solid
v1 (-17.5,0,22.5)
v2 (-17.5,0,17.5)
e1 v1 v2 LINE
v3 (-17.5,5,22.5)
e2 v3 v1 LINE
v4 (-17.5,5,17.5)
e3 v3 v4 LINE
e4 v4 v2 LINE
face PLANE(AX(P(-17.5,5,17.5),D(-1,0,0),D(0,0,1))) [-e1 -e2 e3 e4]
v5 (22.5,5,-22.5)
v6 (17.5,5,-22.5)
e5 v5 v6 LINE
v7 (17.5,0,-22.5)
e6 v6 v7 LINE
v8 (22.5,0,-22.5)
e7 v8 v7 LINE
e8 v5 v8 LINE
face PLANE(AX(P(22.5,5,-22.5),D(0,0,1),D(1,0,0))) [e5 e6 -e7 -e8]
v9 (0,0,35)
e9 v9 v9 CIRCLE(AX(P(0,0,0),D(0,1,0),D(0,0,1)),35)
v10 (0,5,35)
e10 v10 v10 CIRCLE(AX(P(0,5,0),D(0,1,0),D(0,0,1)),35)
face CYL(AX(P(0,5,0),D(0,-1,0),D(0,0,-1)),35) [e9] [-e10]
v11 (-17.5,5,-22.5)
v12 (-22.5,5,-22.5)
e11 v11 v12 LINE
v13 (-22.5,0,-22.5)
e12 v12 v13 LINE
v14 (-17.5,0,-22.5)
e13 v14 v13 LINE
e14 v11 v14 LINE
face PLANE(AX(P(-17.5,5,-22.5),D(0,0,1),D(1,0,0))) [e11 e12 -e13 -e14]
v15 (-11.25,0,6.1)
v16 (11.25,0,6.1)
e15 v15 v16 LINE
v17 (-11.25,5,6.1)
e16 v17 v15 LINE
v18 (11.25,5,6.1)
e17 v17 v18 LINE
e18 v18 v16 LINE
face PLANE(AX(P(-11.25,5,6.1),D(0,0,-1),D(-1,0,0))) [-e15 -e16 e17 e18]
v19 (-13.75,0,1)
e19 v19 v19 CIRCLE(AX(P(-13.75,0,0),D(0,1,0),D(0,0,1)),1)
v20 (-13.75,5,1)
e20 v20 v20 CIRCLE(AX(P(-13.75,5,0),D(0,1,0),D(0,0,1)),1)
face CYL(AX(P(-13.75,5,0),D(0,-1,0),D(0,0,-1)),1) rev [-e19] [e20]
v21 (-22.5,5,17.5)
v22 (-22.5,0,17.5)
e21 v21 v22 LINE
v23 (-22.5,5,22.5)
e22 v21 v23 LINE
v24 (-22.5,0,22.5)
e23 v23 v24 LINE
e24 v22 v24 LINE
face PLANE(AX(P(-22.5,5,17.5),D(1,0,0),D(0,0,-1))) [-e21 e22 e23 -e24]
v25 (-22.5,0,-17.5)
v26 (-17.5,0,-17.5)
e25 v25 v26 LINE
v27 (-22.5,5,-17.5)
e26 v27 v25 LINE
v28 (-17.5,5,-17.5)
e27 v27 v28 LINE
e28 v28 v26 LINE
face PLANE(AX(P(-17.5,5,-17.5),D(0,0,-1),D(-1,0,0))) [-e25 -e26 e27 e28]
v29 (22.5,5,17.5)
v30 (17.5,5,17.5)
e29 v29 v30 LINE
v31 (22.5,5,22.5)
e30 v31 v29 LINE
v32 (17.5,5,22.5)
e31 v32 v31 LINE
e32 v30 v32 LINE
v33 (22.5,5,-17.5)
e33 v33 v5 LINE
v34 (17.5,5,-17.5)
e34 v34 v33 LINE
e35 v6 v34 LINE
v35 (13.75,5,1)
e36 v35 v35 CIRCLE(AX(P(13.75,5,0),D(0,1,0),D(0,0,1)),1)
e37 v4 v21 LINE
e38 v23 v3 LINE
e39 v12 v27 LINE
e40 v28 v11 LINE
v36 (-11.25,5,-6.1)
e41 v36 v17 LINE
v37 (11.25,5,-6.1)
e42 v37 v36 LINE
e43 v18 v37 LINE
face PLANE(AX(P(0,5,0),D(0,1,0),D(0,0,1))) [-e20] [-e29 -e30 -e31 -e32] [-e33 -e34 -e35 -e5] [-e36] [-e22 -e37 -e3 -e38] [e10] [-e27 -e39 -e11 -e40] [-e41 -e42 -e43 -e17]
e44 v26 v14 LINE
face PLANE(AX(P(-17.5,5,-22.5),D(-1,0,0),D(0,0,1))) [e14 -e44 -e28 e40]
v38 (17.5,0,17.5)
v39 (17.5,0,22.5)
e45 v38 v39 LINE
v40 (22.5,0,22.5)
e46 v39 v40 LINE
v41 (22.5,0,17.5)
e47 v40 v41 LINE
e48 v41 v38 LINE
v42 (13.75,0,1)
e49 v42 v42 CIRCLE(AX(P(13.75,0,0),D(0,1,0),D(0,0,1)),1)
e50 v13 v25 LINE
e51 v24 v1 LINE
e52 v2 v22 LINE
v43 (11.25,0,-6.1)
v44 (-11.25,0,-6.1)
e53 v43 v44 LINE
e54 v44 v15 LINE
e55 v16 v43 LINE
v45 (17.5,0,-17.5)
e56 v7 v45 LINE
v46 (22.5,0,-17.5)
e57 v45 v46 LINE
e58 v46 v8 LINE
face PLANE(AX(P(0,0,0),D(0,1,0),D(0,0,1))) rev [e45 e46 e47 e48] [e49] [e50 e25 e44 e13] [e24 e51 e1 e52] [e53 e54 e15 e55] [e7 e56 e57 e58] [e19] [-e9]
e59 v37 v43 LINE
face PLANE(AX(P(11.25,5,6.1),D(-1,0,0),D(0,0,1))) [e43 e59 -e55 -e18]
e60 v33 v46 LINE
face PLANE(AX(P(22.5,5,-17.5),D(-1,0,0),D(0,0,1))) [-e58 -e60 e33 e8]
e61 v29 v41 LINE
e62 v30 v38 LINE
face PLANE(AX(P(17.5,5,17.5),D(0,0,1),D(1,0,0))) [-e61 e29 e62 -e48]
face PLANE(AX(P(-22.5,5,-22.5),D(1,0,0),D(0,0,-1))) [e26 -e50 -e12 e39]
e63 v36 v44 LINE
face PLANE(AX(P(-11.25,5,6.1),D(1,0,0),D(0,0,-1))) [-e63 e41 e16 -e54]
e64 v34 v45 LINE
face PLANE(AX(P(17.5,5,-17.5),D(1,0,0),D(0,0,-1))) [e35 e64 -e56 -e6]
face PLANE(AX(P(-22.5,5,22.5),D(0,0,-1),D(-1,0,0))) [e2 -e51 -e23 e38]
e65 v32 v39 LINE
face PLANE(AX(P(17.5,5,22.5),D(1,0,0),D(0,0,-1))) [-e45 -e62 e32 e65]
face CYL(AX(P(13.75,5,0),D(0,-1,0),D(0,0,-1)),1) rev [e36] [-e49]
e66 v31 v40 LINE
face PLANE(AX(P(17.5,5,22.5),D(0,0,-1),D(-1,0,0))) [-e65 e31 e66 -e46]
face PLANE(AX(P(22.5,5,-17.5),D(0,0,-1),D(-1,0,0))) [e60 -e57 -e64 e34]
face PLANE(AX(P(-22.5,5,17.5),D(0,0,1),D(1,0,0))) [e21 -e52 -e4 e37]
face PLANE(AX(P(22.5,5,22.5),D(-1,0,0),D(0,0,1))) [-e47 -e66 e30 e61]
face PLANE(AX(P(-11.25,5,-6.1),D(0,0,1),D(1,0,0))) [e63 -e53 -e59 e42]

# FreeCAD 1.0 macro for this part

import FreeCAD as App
import Part
import Sketcher

V = App.Vector
Q = App.Units.Quantity


def add_polygon(sketch, points):
    """Adds a closed chain of lines whose ends are joined by coincident constraints."""
    first, n = sketch.GeometryCount, len(points)
    for a, b in zip(points, points[1:] + points[:1]):
        sketch.addGeometry(Part.LineSegment(App.Vector(*a, 0), App.Vector(*b, 0)), False)
    for i in range(n):
        sketch.addConstraint(Sketcher.Constraint("Coincident", first + i, 2, first + (i + 1) % n, 1))

doc = App.newDocument("Part")
body = doc.addObject("PartDesign::Body", "Body")

# Sketch on XZ plane
sketch1 = body.newObject("Sketcher::SketchObject", "Sketch")
sketch1.AttachmentSupport = (doc.getObject("XZ_Plane"), [""])
sketch1.MapMode = "FlatFace"
sketch1.addGeometry(Part.Circle(V(0, 0, 0), V(0, 0, 1), 35), False)  # 0
add_polygon(sketch1, [(-17.5, -17.5), (-22.5, -17.5), (-22.5, -22.5), (-17.5, -22.5)])  # lines 1-4
sketch1.addGeometry(Part.Circle(V(-13.75, 0, 0), V(0, 0, 1), 1), False)  # 5
add_polygon(sketch1, [(-17.5, 22.5), (-22.5, 22.5), (-22.5, 17.5), (-17.5, 17.5)])  # lines 6-9
add_polygon(sketch1, [(22.5, -17.5), (17.5, -17.5), (17.5, -22.5), (22.5, -22.5)])  # lines 10-13
sketch1.addGeometry(Part.Circle(V(13.75, 0, 0), V(0, 0, 1), 1), False)  # 14
add_polygon(sketch1, [(11.25, 6.1), (-11.25, 6.1), (-11.25, -6.1), (11.25, -6.1)])  # lines 15-18
add_polygon(sketch1, [(22.5, 22.5), (17.5, 22.5), (17.5, 17.5), (22.5, 17.5)])  # lines 19-22
sketch1.addConstraint([
    Sketcher.Constraint("Horizontal", 1),
    Sketcher.Constraint("Vertical", 2),
    Sketcher.Constraint("Horizontal", 3),
    Sketcher.Constraint("Vertical", 4),
    Sketcher.Constraint("Horizontal", 6),
    Sketcher.Constraint("Vertical", 7),
    Sketcher.Constraint("Horizontal", 8),
    Sketcher.Constraint("Vertical", 9),
    Sketcher.Constraint("Horizontal", 10),
    Sketcher.Constraint("Vertical", 11),
    Sketcher.Constraint("Horizontal", 12),
    Sketcher.Constraint("Vertical", 13),
    Sketcher.Constraint("Horizontal", 15),
    Sketcher.Constraint("Vertical", 16),
    Sketcher.Constraint("Horizontal", 17),
    Sketcher.Constraint("Vertical", 18),
    Sketcher.Constraint("Horizontal", 19),
    Sketcher.Constraint("Vertical", 20),
    Sketcher.Constraint("Horizontal", 21),
    Sketcher.Constraint("Vertical", 22),
    Sketcher.Constraint("Coincident", 0, 3, -1, 1),
    Sketcher.Constraint("Equal", 5, 14),
    Sketcher.Constraint("Symmetric", 5, 3, 14, 3, -1, 1),
    Sketcher.Constraint("Symmetric", 8, 2, 10, 2, -1, 1),
    Sketcher.Constraint("Symmetric", 6, 2, 12, 2, -1, 1),
    Sketcher.Constraint("Symmetric", 15, 2, 17, 2, -1, 1),
    Sketcher.Constraint("Symmetric", 3, 2, 19, 2, -1, 1),
    Sketcher.Constraint("Symmetric", 1, 2, 21, 2, -1, 1),
    Sketcher.Constraint("Symmetric", 4, 2, 10, 2, -2),
    Sketcher.Constraint("Symmetric", 2, 2, 12, 2, -2),
    Sketcher.Constraint("PointOnObject", 5, 3, -1),
    Sketcher.Constraint("Equal", 21, 2),
    Sketcher.Constraint("Diameter", 0, Q("70 mm")),
    Sketcher.Constraint("Diameter", 5, Q("2 mm")),
    Sketcher.Constraint("DistanceX", 1, 2, 1, 1, Q("5 mm")),
    Sketcher.Constraint("DistanceX", 15, 2, 15, 1, Q("22.5 mm")),
    Sketcher.Constraint("DistanceY", 16, 2, 16, 1, Q("12.2 mm")),
    Sketcher.Constraint("DistanceY", 1, 2, 6, 2, Q("40 mm")),
    Sketcher.Constraint("DistanceX", 4, 2, 10, 2, Q("35 mm")),
    Sketcher.Constraint("DistanceX", 5, 3, 14, 3, Q("27.5 mm")),
])
pad1 = body.newObject("PartDesign::Pad", "Pad")
pad1.Profile = sketch1
pad1.Length = 5
pad1.Reversed = True

doc.recompute()
